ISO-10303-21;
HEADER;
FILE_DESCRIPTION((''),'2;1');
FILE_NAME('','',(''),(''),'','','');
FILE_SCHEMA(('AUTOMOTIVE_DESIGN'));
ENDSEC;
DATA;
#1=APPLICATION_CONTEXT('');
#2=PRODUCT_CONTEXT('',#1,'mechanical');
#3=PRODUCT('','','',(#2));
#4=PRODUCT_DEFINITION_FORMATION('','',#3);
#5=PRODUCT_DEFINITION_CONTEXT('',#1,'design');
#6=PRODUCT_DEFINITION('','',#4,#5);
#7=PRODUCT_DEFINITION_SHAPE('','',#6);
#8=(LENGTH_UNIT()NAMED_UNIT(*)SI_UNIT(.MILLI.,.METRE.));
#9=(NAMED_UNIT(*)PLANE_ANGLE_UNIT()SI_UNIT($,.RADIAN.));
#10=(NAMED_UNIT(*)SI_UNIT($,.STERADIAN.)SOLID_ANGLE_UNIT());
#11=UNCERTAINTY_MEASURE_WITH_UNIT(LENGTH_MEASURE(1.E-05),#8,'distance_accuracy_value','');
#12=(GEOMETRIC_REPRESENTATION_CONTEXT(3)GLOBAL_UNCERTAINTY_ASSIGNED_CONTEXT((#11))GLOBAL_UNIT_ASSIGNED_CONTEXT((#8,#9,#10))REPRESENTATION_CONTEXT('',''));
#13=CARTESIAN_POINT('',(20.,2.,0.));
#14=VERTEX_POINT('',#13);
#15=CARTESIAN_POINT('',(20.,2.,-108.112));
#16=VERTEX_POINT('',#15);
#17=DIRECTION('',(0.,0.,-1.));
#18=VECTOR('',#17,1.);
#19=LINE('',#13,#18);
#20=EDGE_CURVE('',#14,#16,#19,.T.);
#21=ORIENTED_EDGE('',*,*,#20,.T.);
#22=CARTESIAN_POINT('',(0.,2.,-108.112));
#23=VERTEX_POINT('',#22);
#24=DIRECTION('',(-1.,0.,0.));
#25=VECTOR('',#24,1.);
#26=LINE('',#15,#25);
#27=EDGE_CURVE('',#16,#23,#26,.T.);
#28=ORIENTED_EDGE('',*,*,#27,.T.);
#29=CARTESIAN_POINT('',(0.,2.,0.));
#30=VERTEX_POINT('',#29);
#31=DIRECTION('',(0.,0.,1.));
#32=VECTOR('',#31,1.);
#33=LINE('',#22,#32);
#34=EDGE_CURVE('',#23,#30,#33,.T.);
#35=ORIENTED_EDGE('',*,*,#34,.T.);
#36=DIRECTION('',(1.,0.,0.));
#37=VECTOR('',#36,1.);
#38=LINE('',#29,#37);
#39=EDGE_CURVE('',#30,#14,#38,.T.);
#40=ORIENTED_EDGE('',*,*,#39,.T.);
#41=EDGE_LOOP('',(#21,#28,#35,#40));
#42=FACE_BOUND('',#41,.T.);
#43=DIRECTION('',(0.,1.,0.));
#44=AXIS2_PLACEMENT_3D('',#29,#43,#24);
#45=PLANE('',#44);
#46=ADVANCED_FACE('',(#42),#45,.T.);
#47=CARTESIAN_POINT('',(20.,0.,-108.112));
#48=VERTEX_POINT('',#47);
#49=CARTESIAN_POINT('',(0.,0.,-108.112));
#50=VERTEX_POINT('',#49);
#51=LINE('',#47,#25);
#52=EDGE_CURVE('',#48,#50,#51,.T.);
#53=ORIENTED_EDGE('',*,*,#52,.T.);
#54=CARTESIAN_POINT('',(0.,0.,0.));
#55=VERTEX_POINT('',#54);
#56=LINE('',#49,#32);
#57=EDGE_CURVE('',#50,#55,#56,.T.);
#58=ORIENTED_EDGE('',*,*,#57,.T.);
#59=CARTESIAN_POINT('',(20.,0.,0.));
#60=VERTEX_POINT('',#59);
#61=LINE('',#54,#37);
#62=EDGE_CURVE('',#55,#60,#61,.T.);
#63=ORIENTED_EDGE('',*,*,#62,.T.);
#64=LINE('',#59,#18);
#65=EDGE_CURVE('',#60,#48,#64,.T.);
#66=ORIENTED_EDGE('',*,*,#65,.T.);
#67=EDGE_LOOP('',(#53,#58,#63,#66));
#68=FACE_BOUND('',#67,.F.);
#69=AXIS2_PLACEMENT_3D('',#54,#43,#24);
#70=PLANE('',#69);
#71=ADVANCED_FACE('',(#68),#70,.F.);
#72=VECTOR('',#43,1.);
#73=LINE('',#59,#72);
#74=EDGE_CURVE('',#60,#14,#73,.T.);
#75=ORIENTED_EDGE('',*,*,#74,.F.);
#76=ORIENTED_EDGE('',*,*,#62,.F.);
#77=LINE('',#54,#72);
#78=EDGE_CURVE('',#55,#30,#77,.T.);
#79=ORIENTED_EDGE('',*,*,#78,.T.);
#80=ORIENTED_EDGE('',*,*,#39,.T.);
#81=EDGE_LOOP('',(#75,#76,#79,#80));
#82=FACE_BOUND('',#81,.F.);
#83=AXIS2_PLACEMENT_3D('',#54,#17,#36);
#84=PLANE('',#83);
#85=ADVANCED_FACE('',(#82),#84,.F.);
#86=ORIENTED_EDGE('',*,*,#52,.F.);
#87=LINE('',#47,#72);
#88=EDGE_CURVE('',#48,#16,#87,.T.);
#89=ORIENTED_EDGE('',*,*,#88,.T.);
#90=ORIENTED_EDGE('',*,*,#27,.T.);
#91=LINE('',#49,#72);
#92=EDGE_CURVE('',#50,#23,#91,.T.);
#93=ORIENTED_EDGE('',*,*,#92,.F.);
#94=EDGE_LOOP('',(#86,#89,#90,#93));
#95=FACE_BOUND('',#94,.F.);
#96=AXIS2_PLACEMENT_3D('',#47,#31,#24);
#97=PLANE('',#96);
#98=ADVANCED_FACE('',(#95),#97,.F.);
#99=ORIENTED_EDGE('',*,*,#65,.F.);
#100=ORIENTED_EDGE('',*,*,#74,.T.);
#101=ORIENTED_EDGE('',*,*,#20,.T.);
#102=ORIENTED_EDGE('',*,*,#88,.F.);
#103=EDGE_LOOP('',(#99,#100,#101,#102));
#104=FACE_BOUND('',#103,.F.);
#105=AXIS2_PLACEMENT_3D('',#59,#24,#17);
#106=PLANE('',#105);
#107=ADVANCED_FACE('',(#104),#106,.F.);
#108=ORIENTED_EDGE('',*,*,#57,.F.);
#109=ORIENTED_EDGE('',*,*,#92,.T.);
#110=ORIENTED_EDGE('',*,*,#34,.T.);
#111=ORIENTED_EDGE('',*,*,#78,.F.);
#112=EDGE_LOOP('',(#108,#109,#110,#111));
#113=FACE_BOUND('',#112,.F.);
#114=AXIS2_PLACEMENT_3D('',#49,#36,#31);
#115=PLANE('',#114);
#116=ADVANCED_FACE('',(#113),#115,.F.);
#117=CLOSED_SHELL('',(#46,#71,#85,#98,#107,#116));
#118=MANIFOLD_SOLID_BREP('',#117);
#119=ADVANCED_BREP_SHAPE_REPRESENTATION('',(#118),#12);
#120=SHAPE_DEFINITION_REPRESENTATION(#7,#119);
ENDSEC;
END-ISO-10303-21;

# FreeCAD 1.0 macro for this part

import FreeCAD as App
import Part
import Sketcher

V = App.Vector
Q = App.Units.Quantity

doc = App.newDocument("Part")
body = doc.addObject("PartDesign::Body", "Body")

# Sketch on XZ plane
sketch1 = body.newObject("Sketcher::SketchObject", "Sketch")
sketch1.AttachmentSupport = (doc.getObject("XZ_Plane"), [""])
sketch1.MapMode = "FlatFace"
sketch1.addGeometry(Part.LineSegment(V(0, -108, 0), V(0, 0, 0)), False)
sketch1.addGeometry(Part.LineSegment(V(0, 0, 0), V(20, 0, 0)), False)
sketch1.addGeometry(Part.LineSegment(V(20, 0, 0), V(20, -108, 0)), False)
sketch1.addGeometry(Part.LineSegment(V(20, -108, 0), V(0, -108, 0)), False)
sketch1.addConstraint(Sketcher.Constraint("Coincident", 0, 2, 1, 1))
sketch1.addConstraint(Sketcher.Constraint("Coincident", 1, 2, 2, 1))
sketch1.addConstraint(Sketcher.Constraint("Coincident", 2, 2, 3, 1))
sketch1.addConstraint(Sketcher.Constraint("Coincident", 3, 2, 0, 1))
sketch1.addConstraint(Sketcher.Constraint("Vertical", 0))
sketch1.addConstraint(Sketcher.Constraint("Horizontal", 1))
sketch1.addConstraint(Sketcher.Constraint("Vertical", 2))
sketch1.addConstraint(Sketcher.Constraint("Horizontal", 3))
sketch1.addConstraint(Sketcher.Constraint("Coincident", 0, 2, -1, 1))
sketch1.addConstraint(Sketcher.Constraint("DistanceX", 1, 1, 1, 2, Q("20 mm")))
sketch1.addConstraint(Sketcher.Constraint("DistanceY", 0, 1, 0, 2, Q("108.112 mm")))
pad1 = body.newObject("PartDesign::Pad", "Pad")
pad1.Profile = sketch1
pad1.Length = 2
pad1.Reversed = True

doc.recompute()
